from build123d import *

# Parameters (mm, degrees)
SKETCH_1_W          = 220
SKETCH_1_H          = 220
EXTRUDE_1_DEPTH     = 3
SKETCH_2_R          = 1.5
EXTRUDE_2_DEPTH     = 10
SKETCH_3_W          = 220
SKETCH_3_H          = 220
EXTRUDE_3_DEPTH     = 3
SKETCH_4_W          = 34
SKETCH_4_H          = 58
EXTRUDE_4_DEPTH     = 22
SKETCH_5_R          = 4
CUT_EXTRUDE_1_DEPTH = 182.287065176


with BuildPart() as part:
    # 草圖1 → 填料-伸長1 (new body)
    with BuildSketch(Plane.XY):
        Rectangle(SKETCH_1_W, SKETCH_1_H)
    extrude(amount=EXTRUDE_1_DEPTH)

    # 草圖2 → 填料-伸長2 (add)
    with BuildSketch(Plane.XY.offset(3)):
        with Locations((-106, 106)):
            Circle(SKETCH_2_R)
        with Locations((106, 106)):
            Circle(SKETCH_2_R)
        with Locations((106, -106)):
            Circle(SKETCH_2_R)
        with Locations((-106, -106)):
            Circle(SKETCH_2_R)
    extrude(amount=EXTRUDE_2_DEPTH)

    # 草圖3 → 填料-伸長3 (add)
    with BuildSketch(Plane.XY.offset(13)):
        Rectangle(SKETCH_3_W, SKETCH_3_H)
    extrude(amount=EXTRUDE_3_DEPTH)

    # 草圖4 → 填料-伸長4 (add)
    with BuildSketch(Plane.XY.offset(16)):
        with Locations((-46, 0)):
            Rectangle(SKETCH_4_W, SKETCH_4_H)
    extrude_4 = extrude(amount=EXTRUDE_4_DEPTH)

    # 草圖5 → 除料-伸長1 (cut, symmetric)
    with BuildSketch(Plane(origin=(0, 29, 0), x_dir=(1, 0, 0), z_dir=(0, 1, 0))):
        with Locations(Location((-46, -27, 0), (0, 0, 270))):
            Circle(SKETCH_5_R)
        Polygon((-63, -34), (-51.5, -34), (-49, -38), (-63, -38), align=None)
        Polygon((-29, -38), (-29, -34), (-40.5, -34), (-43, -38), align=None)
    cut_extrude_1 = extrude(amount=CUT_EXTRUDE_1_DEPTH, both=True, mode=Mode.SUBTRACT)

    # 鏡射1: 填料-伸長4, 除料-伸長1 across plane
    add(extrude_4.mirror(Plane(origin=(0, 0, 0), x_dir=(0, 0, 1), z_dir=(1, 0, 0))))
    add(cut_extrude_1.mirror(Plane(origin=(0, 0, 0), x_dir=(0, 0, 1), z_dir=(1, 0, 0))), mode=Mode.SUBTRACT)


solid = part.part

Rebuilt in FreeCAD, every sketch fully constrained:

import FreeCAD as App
import Part
import Sketcher

V = App.Vector
Q = App.Units.Quantity


def add_polygon(sketch, points):
    """Adds a closed chain of lines whose ends are joined by coincident constraints."""
    first, n = sketch.GeometryCount, len(points)
    for a, b in zip(points, points[1:] + points[:1]):
        sketch.addGeometry(Part.LineSegment(App.Vector(*a, 0), App.Vector(*b, 0)), False)
    for i in range(n):
        sketch.addConstraint(Sketcher.Constraint("Coincident", first + i, 2, first + (i + 1) % n, 1))

doc = App.newDocument("Part")
body = doc.addObject("PartDesign::Body", "Body")

# Sketch on XY plane
sketch1 = body.newObject("Sketcher::SketchObject", "Sketch")
sketch1.AttachmentSupport = (doc.getObject("XY_Plane"), [""])
sketch1.MapMode = "FlatFace"
add_polygon(sketch1, [(-110, 110), (-110, -110), (110, -110), (110, 110)])  # lines 0-3
sketch1.addConstraint([
    Sketcher.Constraint("Vertical", 0),
    Sketcher.Constraint("Horizontal", 1),
    Sketcher.Constraint("Vertical", 2),
    Sketcher.Constraint("Horizontal", 3),
    Sketcher.Constraint("Symmetric", 0, 2, 2, 2, -1, 1),
    Sketcher.Constraint("Equal", 3, 0),
    Sketcher.Constraint("DistanceX", 1, 1, 1, 2, Q("220 mm")),
])
pad1 = body.newObject("PartDesign::Pad", "Pad")
pad1.Profile = sketch1
pad1.Length = 3

# Sketch on XY plane
sketch2 = body.newObject("Sketcher::SketchObject", "Sketch001")
sketch2.AttachmentSupport = (doc.getObject("XY_Plane"), [""])
sketch2.MapMode = "FlatFace"
sketch2.AttachmentOffset = App.Placement(V(0, 0, 3), App.Rotation())
sketch2.addGeometry([
    Part.Circle(V(-106, 106, 0), V(0, 0, 1), 1.5),
    Part.Circle(V(106, 106, 0), V(0, 0, 1), 1.5),
    Part.Circle(V(106, -106, 0), V(0, 0, 1), 1.5),
    Part.Circle(V(-106, -106, 0), V(0, 0, 1), 1.5),
], False)
sketch2.addConstraint([
    Sketcher.Constraint("Equal", 0, 1),
    Sketcher.Constraint("Equal", 1, 2),
    Sketcher.Constraint("Equal", 2, 3),
    Sketcher.Constraint("Symmetric", 0, 3, 2, 3, -1, 1),
    Sketcher.Constraint("Symmetric", 1, 3, 3, 3, -1, 1),
    Sketcher.Constraint("Symmetric", 0, 3, 1, 3, -2),
    Sketcher.Constraint("Diameter", 0, Q("3 mm")),
    Sketcher.Constraint("DistanceX", 0, 3, -1, 1, Q("106 mm")),
    Sketcher.Constraint("DistanceY", -1, 1, 0, 3, Q("106 mm")),
])
pad2 = body.newObject("PartDesign::Pad", "Pad001")
pad2.Profile = sketch2
pad2.Length = 10

# Sketch on XY plane
sketch3 = body.newObject("Sketcher::SketchObject", "Sketch002")
sketch3.AttachmentSupport = (doc.getObject("XY_Plane"), [""])
sketch3.MapMode = "FlatFace"
sketch3.AttachmentOffset = App.Placement(V(0, 0, 13), App.Rotation())
add_polygon(sketch3, [(-110, 110), (-110, -110), (110, -110), (110, 110)])  # lines 0-3
sketch3.addConstraint([
    Sketcher.Constraint("Vertical", 0),
    Sketcher.Constraint("Horizontal", 1),
    Sketcher.Constraint("Vertical", 2),
    Sketcher.Constraint("Horizontal", 3),
    Sketcher.Constraint("Symmetric", 0, 2, 2, 2, -1, 1),
    Sketcher.Constraint("Equal", 3, 0),
    Sketcher.Constraint("DistanceX", 1, 1, 1, 2, Q("220 mm")),
])
pad3 = body.newObject("PartDesign::Pad", "Pad002")
pad3.Profile = sketch3
pad3.Length = 3

# Sketch on XY plane
sketch4 = body.newObject("Sketcher::SketchObject", "Sketch003")
sketch4.AttachmentSupport = (doc.getObject("XY_Plane"), [""])
sketch4.MapMode = "FlatFace"
sketch4.AttachmentOffset = App.Placement(V(0, 0, 16), App.Rotation())
add_polygon(sketch4, [(-63, 29), (-63, -29), (-29, -29), (-29, 29)])  # lines 0-3
sketch4.addConstraint([
    Sketcher.Constraint("Vertical", 0),
    Sketcher.Constraint("Horizontal", 1),
    Sketcher.Constraint("Vertical", 2),
    Sketcher.Constraint("Horizontal", 3),
    Sketcher.Constraint("DistanceX", 1, 1, 1, 2, Q("34 mm")),
    Sketcher.Constraint("DistanceY", 0, 2, 0, 1, Q("58 mm")),
    Sketcher.Constraint("DistanceX", 0, 2, -1, 1, Q("63 mm")),
    Sketcher.Constraint("DistanceY", 0, 2, -1, 1, Q("29 mm")),
])
pad4 = body.newObject("PartDesign::Pad", "Pad003")
pad4.Profile = sketch4
pad4.Length = 22

# Sketch on XZ plane
sketch5 = body.newObject("Sketcher::SketchObject", "Sketch004")
sketch5.AttachmentSupport = (doc.getObject("XZ_Plane"), [""])
sketch5.MapMode = "FlatFace"
sketch5.AttachmentOffset = App.Placement(V(0, 0, -29), App.Rotation())
sketch5.addGeometry(Part.Circle(V(-46, 27, 0), V(0, 0, 1), 4), False)  # 0
add_polygon(sketch5, [(-51.5, 34), (-63, 34), (-63, 38), (-49, 38)])  # lines 1-4
add_polygon(sketch5, [(-29, 38), (-29, 34), (-40.5, 34), (-43, 38)])  # lines 5-8
sketch5.addConstraint([
    Sketcher.Constraint("Horizontal", 1),
    Sketcher.Constraint("Vertical", 2),
    Sketcher.Constraint("Horizontal", 3),
    Sketcher.Constraint("Vertical", 5),
    Sketcher.Constraint("Horizontal", 6),
    Sketcher.Constraint("Horizontal", 8),
    Sketcher.Constraint("Horizontal", 4, 2, 5, 2),
    Sketcher.Constraint("Horizontal", 3, 2, 7, 2),
    Sketcher.Constraint("Equal", 1, 6),
    Sketcher.Constraint("Equal", 3, 8),
    Sketcher.Constraint("Diameter", 0, Q("8 mm")),
    Sketcher.Constraint("DistanceX", 3, 1, 3, 2, Q("14 mm")),
    Sketcher.Constraint("DistanceY", 2, 1, 2, 2, Q("4 mm")),
    Sketcher.Constraint("DistanceX", 1, 2, 1, 1, Q("11.5 mm")),
    Sketcher.Constraint("DistanceX", 0, 3, -1, 1, Q("46 mm")),
    Sketcher.Constraint("DistanceY", -1, 1, 0, 3, Q("27 mm")),
    Sketcher.Constraint("DistanceX", 1, 2, -1, 1, Q("63 mm")),
    Sketcher.Constraint("DistanceY", -1, 1, 1, 2, Q("34 mm")),
    Sketcher.Constraint("DistanceX", 5, 2, -1, 1, Q("29 mm")),
])
pocket1 = body.newObject("PartDesign::Pocket", "Pocket")
pocket1.Profile = sketch5
pocket1.Length = 364.57413
pocket1.Midplane = True
doc.recompute()

mirrored = body.newObject("PartDesign::Mirrored", "Mirrored")
mirrored.Originals = [pad4, pocket1]
mirrored.MirrorPlane = (doc.getObject("YZ_Plane"), [""])
body.Tip = mirrored

doc.recompute()
